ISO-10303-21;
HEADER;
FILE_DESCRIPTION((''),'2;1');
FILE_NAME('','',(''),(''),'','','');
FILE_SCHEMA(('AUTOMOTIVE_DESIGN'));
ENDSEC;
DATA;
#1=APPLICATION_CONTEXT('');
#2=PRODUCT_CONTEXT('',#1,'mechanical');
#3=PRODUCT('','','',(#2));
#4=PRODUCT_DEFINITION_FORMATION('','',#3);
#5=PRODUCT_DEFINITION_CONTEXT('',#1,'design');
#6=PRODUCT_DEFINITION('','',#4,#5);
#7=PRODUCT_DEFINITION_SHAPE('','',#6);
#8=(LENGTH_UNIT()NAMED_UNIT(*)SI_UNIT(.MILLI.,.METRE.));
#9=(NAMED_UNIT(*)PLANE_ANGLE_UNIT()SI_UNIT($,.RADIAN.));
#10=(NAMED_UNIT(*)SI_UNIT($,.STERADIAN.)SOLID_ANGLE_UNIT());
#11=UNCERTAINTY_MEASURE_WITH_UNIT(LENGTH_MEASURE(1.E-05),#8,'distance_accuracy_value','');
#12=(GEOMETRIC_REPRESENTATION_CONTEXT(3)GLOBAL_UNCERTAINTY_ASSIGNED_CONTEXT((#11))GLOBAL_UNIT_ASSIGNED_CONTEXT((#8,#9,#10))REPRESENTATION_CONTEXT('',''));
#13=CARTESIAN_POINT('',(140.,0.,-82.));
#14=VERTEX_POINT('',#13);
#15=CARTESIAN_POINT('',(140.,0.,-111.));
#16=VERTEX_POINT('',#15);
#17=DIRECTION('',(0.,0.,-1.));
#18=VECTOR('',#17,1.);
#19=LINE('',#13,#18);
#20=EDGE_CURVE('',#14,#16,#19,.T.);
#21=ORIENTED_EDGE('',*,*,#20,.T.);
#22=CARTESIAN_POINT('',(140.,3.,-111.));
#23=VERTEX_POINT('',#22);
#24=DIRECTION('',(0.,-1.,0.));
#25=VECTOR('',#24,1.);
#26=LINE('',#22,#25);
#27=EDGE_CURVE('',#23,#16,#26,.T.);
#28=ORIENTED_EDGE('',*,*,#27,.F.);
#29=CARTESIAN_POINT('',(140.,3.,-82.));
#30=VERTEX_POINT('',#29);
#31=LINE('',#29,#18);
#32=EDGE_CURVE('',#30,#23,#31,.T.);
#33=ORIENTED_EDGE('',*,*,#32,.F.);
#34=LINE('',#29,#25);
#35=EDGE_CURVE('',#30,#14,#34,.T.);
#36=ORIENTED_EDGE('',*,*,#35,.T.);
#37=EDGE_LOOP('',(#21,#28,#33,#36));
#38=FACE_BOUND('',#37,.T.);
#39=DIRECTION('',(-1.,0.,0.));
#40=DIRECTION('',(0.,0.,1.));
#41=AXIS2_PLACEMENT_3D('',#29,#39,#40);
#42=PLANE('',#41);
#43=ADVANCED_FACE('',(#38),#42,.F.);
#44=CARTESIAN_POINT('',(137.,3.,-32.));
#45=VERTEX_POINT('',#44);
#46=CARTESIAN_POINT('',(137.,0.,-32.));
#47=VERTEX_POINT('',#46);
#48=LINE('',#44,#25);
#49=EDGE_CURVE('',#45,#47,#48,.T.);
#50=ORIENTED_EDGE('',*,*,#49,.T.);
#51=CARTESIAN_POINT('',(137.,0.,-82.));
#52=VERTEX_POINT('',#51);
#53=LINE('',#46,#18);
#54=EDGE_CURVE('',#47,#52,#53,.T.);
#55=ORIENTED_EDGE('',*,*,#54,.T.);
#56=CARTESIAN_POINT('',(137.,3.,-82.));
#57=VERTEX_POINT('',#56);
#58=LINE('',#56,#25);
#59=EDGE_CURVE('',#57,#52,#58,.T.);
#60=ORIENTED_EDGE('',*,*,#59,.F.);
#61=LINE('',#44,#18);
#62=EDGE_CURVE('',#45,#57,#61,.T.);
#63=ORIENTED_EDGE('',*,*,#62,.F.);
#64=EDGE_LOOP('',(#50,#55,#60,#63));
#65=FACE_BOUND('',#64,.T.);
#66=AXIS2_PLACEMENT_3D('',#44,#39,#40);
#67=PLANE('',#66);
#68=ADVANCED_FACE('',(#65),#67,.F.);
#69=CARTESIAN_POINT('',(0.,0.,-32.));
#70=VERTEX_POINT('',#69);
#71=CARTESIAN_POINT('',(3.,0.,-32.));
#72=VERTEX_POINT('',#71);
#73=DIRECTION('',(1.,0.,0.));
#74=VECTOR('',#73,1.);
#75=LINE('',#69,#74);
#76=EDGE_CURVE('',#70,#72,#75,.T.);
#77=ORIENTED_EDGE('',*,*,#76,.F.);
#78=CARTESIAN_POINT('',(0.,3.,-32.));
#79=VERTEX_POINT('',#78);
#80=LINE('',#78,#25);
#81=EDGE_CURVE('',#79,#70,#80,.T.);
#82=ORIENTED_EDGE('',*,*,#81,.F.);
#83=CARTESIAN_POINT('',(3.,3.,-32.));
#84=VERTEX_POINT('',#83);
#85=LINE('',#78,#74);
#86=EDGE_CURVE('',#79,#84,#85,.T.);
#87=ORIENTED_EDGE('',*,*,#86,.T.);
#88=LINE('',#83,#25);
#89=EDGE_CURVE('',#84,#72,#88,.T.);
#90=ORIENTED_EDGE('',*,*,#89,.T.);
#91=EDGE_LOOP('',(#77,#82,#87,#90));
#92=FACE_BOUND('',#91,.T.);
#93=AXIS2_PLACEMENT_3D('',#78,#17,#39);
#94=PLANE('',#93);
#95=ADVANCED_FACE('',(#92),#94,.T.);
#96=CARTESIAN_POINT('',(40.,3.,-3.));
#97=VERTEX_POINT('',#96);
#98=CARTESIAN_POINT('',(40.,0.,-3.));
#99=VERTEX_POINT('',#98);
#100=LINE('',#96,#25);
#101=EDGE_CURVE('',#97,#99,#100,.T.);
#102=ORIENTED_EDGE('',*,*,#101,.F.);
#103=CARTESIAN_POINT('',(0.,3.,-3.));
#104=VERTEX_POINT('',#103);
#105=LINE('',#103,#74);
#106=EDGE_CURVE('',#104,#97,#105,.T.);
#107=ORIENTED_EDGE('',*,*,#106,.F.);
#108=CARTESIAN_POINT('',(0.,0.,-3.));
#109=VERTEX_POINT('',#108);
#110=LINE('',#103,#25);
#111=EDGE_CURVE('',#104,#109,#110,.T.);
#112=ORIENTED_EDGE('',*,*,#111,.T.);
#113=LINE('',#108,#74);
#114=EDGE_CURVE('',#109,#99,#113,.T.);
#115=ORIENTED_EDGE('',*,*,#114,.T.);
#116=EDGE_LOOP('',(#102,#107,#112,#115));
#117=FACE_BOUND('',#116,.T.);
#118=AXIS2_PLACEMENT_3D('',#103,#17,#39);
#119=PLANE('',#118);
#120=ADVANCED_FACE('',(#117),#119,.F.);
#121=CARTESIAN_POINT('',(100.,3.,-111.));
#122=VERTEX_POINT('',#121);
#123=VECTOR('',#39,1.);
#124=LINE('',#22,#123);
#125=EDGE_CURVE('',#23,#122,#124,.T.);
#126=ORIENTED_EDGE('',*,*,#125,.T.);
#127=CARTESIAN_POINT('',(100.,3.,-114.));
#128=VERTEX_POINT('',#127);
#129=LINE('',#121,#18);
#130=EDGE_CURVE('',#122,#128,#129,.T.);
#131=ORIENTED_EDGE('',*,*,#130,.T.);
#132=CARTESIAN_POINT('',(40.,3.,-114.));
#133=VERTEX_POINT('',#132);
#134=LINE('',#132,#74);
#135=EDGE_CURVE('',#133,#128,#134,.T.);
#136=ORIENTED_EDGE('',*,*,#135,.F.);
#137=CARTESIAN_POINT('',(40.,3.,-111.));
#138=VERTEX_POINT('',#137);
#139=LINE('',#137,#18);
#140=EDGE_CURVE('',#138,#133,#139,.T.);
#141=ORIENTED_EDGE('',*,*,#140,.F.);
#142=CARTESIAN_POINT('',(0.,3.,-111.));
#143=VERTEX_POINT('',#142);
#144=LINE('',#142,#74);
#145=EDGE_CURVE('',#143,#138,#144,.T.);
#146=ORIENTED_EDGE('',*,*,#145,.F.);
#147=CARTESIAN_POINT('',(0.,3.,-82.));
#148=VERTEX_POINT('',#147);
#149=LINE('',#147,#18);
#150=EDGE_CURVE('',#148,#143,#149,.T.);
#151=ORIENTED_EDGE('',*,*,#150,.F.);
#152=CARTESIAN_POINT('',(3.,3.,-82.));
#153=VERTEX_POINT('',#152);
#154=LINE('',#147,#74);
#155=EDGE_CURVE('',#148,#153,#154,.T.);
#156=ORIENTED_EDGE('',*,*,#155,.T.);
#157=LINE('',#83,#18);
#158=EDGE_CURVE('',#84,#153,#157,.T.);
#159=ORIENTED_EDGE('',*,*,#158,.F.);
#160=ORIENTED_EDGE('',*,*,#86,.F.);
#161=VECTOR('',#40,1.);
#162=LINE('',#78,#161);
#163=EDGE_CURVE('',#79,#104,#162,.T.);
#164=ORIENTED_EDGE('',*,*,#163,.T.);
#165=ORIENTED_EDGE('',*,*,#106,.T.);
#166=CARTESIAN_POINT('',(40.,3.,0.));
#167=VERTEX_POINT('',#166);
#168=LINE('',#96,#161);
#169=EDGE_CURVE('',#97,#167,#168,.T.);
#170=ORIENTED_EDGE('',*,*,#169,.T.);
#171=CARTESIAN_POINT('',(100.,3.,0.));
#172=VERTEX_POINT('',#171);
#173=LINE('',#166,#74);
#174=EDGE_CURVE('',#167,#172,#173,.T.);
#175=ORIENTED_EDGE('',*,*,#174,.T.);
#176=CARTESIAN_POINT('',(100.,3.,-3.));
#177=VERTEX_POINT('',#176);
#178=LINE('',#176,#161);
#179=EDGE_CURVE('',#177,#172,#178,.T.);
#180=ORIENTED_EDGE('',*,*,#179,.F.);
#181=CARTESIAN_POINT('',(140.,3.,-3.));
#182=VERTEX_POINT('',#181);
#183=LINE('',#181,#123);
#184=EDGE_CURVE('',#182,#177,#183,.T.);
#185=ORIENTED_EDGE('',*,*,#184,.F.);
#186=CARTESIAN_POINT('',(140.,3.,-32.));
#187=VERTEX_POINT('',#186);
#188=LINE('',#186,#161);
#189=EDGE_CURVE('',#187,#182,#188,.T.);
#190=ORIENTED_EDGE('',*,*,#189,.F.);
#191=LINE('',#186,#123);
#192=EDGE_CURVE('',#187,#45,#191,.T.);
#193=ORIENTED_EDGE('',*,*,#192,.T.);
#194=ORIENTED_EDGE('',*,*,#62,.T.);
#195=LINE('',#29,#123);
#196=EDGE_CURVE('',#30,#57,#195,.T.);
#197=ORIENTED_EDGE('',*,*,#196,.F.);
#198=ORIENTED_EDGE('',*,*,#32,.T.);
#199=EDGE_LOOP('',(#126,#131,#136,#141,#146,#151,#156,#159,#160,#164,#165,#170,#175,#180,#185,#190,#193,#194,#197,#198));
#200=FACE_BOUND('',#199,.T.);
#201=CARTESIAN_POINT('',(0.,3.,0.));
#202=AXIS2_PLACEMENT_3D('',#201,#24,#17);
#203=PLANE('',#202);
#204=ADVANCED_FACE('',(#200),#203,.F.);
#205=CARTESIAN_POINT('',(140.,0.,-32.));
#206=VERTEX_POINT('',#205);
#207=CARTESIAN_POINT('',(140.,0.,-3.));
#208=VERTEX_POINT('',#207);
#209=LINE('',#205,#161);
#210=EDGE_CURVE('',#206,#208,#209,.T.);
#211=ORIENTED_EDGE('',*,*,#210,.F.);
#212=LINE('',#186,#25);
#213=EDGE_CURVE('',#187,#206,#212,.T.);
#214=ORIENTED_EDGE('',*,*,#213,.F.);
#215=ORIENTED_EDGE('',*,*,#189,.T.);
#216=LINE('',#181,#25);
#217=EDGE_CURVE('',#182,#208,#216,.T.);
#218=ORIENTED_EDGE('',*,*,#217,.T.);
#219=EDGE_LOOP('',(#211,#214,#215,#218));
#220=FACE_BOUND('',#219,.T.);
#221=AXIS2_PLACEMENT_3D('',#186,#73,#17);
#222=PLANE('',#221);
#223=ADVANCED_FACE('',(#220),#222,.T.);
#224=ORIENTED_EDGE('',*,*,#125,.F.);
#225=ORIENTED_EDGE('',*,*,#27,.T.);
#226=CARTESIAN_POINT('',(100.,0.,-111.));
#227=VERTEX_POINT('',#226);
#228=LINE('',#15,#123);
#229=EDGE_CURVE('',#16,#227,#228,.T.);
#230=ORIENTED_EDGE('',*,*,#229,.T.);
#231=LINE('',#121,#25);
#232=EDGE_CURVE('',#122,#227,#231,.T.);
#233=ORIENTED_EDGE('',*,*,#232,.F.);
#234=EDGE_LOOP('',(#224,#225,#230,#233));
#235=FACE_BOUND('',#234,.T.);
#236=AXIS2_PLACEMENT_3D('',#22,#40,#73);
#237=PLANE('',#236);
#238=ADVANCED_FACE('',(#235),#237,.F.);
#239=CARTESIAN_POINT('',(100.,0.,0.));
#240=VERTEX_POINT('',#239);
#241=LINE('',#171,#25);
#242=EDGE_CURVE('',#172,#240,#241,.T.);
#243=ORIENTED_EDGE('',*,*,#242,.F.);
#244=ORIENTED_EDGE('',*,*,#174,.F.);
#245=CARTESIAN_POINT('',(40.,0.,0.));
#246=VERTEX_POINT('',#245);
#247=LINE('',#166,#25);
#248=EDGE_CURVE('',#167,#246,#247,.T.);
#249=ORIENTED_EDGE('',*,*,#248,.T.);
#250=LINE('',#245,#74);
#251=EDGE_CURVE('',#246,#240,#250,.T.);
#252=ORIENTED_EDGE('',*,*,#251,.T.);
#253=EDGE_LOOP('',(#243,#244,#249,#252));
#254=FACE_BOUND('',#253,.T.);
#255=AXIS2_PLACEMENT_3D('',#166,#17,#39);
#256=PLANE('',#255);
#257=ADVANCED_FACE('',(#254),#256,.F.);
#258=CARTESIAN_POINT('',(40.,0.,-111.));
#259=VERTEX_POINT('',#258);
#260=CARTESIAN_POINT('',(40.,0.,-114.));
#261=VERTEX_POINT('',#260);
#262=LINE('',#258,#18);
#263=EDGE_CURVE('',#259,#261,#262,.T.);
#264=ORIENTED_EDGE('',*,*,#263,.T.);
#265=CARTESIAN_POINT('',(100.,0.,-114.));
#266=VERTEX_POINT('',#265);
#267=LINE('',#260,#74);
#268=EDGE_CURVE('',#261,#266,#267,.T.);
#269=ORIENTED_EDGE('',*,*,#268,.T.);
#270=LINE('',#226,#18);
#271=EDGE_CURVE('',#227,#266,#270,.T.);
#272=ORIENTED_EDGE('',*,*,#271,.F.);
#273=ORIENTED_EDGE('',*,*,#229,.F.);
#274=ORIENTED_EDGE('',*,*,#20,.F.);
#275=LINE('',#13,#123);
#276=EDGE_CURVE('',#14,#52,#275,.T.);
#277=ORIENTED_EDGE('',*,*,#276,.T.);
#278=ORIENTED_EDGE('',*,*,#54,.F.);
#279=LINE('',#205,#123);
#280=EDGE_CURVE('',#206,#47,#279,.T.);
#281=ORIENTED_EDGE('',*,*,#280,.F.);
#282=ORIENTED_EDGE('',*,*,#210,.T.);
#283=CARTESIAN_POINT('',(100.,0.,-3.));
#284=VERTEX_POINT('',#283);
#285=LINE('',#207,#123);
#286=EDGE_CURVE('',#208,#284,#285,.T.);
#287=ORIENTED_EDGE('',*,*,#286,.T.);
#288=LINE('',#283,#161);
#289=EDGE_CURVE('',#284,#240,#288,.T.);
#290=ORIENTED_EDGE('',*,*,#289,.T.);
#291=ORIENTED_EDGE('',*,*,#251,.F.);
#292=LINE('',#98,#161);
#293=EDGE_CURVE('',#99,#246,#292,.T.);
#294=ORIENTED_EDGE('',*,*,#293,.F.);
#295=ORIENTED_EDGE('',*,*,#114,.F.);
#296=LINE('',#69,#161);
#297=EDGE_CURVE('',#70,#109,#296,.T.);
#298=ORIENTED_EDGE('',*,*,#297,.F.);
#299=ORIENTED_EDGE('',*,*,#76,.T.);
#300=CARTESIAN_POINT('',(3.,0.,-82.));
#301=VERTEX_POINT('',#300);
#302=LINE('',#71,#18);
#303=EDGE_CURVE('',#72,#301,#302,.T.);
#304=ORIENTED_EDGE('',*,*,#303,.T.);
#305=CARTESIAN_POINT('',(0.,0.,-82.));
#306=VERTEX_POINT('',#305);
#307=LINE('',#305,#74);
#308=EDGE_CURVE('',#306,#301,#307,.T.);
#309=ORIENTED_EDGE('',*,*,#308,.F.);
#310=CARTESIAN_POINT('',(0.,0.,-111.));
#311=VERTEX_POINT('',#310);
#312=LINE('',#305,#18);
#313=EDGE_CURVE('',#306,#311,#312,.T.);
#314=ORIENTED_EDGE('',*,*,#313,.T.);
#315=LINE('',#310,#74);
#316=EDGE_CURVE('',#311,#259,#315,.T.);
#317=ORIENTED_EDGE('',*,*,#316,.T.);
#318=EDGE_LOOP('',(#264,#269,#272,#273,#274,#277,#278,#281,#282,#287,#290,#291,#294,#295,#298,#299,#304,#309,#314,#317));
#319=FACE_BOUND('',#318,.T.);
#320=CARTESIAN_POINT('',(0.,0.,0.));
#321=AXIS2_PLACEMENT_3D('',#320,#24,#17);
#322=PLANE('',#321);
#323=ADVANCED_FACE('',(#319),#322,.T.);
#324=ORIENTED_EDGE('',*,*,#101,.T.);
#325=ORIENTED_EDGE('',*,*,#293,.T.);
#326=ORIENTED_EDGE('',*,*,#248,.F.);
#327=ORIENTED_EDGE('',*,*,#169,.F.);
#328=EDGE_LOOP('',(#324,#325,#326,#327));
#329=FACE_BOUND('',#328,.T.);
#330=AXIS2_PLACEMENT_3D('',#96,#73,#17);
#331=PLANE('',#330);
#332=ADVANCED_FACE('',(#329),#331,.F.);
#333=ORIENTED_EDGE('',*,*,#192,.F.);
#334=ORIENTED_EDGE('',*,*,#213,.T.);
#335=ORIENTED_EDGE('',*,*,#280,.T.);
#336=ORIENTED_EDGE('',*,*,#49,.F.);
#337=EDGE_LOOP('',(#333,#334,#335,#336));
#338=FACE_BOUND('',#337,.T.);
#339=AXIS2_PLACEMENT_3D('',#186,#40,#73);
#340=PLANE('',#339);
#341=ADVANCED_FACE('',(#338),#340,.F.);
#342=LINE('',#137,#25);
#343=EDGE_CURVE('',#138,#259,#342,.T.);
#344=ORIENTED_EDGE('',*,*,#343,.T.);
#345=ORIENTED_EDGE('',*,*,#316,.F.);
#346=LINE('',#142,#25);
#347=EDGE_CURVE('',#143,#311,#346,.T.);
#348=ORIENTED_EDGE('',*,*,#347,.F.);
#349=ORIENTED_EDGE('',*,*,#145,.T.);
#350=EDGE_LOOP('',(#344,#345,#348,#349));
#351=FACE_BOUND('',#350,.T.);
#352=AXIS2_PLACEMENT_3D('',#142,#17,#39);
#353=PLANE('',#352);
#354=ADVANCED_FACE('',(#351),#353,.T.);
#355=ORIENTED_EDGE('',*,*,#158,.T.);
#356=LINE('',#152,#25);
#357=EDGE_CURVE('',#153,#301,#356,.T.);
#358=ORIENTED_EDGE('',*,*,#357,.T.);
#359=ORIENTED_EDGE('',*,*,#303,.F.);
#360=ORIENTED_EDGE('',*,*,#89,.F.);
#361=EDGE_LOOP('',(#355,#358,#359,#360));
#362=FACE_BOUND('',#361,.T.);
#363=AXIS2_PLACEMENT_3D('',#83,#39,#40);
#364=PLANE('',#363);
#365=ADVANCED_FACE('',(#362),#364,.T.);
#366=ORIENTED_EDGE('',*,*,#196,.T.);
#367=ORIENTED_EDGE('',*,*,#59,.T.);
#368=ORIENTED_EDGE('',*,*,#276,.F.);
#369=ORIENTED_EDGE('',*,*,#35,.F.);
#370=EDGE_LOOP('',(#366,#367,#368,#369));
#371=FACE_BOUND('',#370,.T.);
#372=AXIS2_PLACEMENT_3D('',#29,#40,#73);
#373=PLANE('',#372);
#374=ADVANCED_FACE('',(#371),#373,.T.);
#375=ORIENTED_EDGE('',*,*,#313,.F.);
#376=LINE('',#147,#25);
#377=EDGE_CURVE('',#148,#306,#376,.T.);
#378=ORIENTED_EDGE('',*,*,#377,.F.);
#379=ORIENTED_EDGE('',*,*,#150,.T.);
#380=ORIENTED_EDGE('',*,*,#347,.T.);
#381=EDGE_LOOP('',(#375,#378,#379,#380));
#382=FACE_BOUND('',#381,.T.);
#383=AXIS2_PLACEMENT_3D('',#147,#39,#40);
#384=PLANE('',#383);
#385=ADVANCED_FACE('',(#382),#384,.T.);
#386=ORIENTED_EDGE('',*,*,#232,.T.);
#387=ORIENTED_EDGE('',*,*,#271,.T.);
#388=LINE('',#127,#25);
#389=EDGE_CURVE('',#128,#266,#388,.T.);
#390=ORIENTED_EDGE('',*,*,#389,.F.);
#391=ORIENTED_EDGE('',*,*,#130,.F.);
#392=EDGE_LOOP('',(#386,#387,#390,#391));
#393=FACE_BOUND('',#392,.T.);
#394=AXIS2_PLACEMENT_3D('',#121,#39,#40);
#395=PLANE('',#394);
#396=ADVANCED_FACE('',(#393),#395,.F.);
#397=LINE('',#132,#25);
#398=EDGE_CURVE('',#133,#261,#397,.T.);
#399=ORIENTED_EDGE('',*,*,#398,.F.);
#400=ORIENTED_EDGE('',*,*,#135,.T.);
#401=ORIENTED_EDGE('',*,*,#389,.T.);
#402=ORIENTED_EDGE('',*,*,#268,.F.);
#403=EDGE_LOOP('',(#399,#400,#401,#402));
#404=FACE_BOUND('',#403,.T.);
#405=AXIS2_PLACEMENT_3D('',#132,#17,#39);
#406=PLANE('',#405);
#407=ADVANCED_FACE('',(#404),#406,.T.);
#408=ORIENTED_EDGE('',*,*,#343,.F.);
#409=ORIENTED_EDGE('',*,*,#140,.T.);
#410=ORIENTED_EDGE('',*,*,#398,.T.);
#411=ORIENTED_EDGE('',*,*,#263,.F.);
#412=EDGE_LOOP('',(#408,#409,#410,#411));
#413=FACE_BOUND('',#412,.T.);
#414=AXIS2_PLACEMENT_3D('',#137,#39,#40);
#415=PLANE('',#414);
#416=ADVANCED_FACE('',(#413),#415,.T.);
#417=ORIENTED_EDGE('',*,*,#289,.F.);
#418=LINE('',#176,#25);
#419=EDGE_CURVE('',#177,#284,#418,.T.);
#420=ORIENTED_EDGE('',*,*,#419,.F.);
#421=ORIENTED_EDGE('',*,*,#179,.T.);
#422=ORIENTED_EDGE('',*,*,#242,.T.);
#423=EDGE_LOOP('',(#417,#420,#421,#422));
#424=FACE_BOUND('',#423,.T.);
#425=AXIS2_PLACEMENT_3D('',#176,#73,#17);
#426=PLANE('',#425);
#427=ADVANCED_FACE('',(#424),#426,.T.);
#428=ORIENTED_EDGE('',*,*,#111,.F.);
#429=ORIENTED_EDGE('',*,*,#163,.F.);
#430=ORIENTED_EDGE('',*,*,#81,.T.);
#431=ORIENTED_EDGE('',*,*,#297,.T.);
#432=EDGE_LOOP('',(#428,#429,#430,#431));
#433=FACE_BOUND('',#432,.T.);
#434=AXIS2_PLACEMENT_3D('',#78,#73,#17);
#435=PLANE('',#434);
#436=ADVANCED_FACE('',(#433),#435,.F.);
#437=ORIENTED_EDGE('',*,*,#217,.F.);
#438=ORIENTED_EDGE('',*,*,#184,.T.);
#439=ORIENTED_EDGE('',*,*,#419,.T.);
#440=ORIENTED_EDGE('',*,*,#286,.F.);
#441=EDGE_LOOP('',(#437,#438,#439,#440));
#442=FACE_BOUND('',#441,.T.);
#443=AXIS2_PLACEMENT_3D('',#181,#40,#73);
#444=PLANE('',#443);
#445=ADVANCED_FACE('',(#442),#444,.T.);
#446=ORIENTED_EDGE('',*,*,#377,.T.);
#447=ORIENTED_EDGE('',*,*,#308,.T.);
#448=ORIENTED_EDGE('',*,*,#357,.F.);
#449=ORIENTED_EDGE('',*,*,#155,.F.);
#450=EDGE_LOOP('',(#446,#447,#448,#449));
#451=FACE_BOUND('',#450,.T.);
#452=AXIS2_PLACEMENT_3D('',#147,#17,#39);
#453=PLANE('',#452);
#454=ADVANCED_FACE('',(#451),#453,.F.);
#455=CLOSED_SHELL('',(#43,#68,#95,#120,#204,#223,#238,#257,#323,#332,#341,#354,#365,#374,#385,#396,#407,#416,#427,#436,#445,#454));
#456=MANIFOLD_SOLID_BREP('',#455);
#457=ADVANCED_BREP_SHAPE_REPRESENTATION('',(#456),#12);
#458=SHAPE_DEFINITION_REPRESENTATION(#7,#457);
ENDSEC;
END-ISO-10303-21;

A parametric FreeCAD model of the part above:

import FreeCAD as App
import Part
import Sketcher
from FreeCAD import Vector

doc = App.newDocument("Part")
params = doc.addObject("Spreadsheet::Sheet", "Params")
for row, (alias, value) in enumerate([
    ("sketch1_width", "40 mm"),
    ("sketch1_width2", "60 mm"),
    ("sketch1_width3", "3 mm"),
    ("sketch1_height", "29 mm"),
    ("sketch1_height2", "50 mm"),
    ("pad1_length", "3 mm"),
], start=1):
    params.set(f"A{row}", alias)
    params.set(f"B{row}", "=" + value)
    params.setAlias(f"B{row}", alias)

body = doc.addObject("PartDesign::Body", "Body")

sketch1 = body.newObject("Sketcher::SketchObject", "Sketch")
sketch1.AttachmentSupport = (doc.getObject("XZ_Plane"), [""])
sketch1.MapMode = "FlatFace"
sketch1.addGeometry([
    Part.LineSegment(Vector(0, -3, 0), Vector(40, -3, 0)),
    Part.LineSegment(Vector(40, -3, 0), Vector(40, 0, 0)),
    Part.LineSegment(Vector(40, 0, 0), Vector(100, 0, 0)),
    Part.LineSegment(Vector(100, 0, 0), Vector(100, -3, 0)),
    Part.LineSegment(Vector(100, -3, 0), Vector(140, -3, 0)),
    Part.LineSegment(Vector(140, -3, 0), Vector(140, -32, 0)),
    Part.LineSegment(Vector(140, -32, 0), Vector(137, -32, 0)),
    Part.LineSegment(Vector(137, -32, 0), Vector(137, -82, 0)),
    Part.LineSegment(Vector(137, -82, 0), Vector(140, -82, 0)),
    Part.LineSegment(Vector(140, -82, 0), Vector(140, -111, 0)),
    Part.LineSegment(Vector(140, -111, 0), Vector(100, -111, 0)),
    Part.LineSegment(Vector(100, -111, 0), Vector(100, -114, 0)),
    Part.LineSegment(Vector(100, -114, 0), Vector(40, -114, 0)),
    Part.LineSegment(Vector(40, -114, 0), Vector(40, -111, 0)),
    Part.LineSegment(Vector(40, -111, 0), Vector(0, -111, 0)),
    Part.LineSegment(Vector(0, -111, 0), Vector(0, -82, 0)),
    Part.LineSegment(Vector(0, -82, 0), Vector(3, -82, 0)),
    Part.LineSegment(Vector(3, -82, 0), Vector(3, -32, 0)),
    Part.LineSegment(Vector(3, -32, 0), Vector(0, -32, 0)),
    Part.LineSegment(Vector(0, -32, 0), Vector(0, -3, 0)),
], False)
sketch1.addConstraint([
    Sketcher.Constraint("Coincident", 0, 2, 1, 1),
    Sketcher.Constraint("Coincident", 1, 2, 2, 1),
    Sketcher.Constraint("Coincident", 2, 2, 3, 1),
    Sketcher.Constraint("Coincident", 3, 2, 4, 1),
    Sketcher.Constraint("Coincident", 4, 2, 5, 1),
    Sketcher.Constraint("Coincident", 5, 2, 6, 1),
    Sketcher.Constraint("Coincident", 6, 2, 7, 1),
    Sketcher.Constraint("Coincident", 7, 2, 8, 1),
    Sketcher.Constraint("Coincident", 8, 2, 9, 1),
    Sketcher.Constraint("Coincident", 9, 2, 10, 1),
    Sketcher.Constraint("Coincident", 10, 2, 11, 1),
    Sketcher.Constraint("Coincident", 11, 2, 12, 1),
    Sketcher.Constraint("Coincident", 12, 2, 13, 1),
    Sketcher.Constraint("Coincident", 13, 2, 14, 1),
    Sketcher.Constraint("Coincident", 14, 2, 15, 1),
    Sketcher.Constraint("Coincident", 15, 2, 16, 1),
    Sketcher.Constraint("Coincident", 16, 2, 17, 1),
    Sketcher.Constraint("Coincident", 17, 2, 18, 1),
    Sketcher.Constraint("Coincident", 18, 2, 19, 1),
    Sketcher.Constraint("Coincident", 19, 2, 0, 1),
    Sketcher.Constraint("Horizontal", 0),
    Sketcher.Constraint("Vertical", 1),
    Sketcher.Constraint("Horizontal", 2),
    Sketcher.Constraint("Vertical", 3),
    Sketcher.Constraint("Horizontal", 4),
    Sketcher.Constraint("Vertical", 5),
    Sketcher.Constraint("Horizontal", 6),
    Sketcher.Constraint("Vertical", 7),
    Sketcher.Constraint("Horizontal", 8),
    Sketcher.Constraint("Vertical", 9),
    Sketcher.Constraint("Horizontal", 10),
    Sketcher.Constraint("Vertical", 11),
    Sketcher.Constraint("Horizontal", 12),
    Sketcher.Constraint("Vertical", 13),
    Sketcher.Constraint("Horizontal", 14),
    Sketcher.Constraint("Vertical", 15),
    Sketcher.Constraint("Horizontal", 16),
    Sketcher.Constraint("Vertical", 17),
    Sketcher.Constraint("Horizontal", 18),
    Sketcher.Constraint("Vertical", 19),
    Sketcher.Constraint("PointOnObject", 1, 2, -1),
    Sketcher.Constraint("PointOnObject", 14, 2, -2),
    Sketcher.Constraint("PointOnObject", 18, 2, -2),
    Sketcher.Constraint("Horizontal", 0, 2, 3, 2),
    Sketcher.Constraint("Horizontal", 10, 2, 13, 2),
    Sketcher.Constraint("Horizontal", 8, 2, 15, 2),
    Sketcher.Constraint("Horizontal", 6, 2, 17, 2),
    Sketcher.Constraint("Vertical", 5, 2, 8, 2),
    Sketcher.Constraint("Vertical", 3, 2, 10, 2),
    Sketcher.Constraint("Vertical", 1, 2, 12, 2),
    Sketcher.Constraint("Equal", 0, 4),
    Sketcher.Constraint("Equal", 8, 16),
    Sketcher.Constraint("Equal", 18, 1),
    Sketcher.Constraint("Equal", 5, 9),
    Sketcher.Constraint("Equal", 3, 11),
    Sketcher.Constraint("DistanceX", 0, 1, 0, 2, 40.0),
    Sketcher.Constraint("DistanceX", 2, 1, 2, 2, 60.0),
    Sketcher.Constraint("DistanceX", 6, 2, 6, 1, 3.0),
    Sketcher.Constraint("DistanceY", 5, 2, 5, 1, 29.0),
    Sketcher.Constraint("DistanceY", 7, 2, 7, 1, 50.0),
])
sketch1.setExpression("Constraints[55]", "Params.sketch1_width")
sketch1.setExpression("Constraints[56]", "Params.sketch1_width2")
sketch1.setExpression("Constraints[57]", "Params.sketch1_width3")
sketch1.setExpression("Constraints[58]", "Params.sketch1_height")
sketch1.setExpression("Constraints[59]", "Params.sketch1_height2")
pad1 = body.newObject("PartDesign::Pad", "Pad")
pad1.Profile = sketch1
pad1.setExpression("Length", "Params.pad1_length")
pad1.Reversed = True

doc.recompute()
